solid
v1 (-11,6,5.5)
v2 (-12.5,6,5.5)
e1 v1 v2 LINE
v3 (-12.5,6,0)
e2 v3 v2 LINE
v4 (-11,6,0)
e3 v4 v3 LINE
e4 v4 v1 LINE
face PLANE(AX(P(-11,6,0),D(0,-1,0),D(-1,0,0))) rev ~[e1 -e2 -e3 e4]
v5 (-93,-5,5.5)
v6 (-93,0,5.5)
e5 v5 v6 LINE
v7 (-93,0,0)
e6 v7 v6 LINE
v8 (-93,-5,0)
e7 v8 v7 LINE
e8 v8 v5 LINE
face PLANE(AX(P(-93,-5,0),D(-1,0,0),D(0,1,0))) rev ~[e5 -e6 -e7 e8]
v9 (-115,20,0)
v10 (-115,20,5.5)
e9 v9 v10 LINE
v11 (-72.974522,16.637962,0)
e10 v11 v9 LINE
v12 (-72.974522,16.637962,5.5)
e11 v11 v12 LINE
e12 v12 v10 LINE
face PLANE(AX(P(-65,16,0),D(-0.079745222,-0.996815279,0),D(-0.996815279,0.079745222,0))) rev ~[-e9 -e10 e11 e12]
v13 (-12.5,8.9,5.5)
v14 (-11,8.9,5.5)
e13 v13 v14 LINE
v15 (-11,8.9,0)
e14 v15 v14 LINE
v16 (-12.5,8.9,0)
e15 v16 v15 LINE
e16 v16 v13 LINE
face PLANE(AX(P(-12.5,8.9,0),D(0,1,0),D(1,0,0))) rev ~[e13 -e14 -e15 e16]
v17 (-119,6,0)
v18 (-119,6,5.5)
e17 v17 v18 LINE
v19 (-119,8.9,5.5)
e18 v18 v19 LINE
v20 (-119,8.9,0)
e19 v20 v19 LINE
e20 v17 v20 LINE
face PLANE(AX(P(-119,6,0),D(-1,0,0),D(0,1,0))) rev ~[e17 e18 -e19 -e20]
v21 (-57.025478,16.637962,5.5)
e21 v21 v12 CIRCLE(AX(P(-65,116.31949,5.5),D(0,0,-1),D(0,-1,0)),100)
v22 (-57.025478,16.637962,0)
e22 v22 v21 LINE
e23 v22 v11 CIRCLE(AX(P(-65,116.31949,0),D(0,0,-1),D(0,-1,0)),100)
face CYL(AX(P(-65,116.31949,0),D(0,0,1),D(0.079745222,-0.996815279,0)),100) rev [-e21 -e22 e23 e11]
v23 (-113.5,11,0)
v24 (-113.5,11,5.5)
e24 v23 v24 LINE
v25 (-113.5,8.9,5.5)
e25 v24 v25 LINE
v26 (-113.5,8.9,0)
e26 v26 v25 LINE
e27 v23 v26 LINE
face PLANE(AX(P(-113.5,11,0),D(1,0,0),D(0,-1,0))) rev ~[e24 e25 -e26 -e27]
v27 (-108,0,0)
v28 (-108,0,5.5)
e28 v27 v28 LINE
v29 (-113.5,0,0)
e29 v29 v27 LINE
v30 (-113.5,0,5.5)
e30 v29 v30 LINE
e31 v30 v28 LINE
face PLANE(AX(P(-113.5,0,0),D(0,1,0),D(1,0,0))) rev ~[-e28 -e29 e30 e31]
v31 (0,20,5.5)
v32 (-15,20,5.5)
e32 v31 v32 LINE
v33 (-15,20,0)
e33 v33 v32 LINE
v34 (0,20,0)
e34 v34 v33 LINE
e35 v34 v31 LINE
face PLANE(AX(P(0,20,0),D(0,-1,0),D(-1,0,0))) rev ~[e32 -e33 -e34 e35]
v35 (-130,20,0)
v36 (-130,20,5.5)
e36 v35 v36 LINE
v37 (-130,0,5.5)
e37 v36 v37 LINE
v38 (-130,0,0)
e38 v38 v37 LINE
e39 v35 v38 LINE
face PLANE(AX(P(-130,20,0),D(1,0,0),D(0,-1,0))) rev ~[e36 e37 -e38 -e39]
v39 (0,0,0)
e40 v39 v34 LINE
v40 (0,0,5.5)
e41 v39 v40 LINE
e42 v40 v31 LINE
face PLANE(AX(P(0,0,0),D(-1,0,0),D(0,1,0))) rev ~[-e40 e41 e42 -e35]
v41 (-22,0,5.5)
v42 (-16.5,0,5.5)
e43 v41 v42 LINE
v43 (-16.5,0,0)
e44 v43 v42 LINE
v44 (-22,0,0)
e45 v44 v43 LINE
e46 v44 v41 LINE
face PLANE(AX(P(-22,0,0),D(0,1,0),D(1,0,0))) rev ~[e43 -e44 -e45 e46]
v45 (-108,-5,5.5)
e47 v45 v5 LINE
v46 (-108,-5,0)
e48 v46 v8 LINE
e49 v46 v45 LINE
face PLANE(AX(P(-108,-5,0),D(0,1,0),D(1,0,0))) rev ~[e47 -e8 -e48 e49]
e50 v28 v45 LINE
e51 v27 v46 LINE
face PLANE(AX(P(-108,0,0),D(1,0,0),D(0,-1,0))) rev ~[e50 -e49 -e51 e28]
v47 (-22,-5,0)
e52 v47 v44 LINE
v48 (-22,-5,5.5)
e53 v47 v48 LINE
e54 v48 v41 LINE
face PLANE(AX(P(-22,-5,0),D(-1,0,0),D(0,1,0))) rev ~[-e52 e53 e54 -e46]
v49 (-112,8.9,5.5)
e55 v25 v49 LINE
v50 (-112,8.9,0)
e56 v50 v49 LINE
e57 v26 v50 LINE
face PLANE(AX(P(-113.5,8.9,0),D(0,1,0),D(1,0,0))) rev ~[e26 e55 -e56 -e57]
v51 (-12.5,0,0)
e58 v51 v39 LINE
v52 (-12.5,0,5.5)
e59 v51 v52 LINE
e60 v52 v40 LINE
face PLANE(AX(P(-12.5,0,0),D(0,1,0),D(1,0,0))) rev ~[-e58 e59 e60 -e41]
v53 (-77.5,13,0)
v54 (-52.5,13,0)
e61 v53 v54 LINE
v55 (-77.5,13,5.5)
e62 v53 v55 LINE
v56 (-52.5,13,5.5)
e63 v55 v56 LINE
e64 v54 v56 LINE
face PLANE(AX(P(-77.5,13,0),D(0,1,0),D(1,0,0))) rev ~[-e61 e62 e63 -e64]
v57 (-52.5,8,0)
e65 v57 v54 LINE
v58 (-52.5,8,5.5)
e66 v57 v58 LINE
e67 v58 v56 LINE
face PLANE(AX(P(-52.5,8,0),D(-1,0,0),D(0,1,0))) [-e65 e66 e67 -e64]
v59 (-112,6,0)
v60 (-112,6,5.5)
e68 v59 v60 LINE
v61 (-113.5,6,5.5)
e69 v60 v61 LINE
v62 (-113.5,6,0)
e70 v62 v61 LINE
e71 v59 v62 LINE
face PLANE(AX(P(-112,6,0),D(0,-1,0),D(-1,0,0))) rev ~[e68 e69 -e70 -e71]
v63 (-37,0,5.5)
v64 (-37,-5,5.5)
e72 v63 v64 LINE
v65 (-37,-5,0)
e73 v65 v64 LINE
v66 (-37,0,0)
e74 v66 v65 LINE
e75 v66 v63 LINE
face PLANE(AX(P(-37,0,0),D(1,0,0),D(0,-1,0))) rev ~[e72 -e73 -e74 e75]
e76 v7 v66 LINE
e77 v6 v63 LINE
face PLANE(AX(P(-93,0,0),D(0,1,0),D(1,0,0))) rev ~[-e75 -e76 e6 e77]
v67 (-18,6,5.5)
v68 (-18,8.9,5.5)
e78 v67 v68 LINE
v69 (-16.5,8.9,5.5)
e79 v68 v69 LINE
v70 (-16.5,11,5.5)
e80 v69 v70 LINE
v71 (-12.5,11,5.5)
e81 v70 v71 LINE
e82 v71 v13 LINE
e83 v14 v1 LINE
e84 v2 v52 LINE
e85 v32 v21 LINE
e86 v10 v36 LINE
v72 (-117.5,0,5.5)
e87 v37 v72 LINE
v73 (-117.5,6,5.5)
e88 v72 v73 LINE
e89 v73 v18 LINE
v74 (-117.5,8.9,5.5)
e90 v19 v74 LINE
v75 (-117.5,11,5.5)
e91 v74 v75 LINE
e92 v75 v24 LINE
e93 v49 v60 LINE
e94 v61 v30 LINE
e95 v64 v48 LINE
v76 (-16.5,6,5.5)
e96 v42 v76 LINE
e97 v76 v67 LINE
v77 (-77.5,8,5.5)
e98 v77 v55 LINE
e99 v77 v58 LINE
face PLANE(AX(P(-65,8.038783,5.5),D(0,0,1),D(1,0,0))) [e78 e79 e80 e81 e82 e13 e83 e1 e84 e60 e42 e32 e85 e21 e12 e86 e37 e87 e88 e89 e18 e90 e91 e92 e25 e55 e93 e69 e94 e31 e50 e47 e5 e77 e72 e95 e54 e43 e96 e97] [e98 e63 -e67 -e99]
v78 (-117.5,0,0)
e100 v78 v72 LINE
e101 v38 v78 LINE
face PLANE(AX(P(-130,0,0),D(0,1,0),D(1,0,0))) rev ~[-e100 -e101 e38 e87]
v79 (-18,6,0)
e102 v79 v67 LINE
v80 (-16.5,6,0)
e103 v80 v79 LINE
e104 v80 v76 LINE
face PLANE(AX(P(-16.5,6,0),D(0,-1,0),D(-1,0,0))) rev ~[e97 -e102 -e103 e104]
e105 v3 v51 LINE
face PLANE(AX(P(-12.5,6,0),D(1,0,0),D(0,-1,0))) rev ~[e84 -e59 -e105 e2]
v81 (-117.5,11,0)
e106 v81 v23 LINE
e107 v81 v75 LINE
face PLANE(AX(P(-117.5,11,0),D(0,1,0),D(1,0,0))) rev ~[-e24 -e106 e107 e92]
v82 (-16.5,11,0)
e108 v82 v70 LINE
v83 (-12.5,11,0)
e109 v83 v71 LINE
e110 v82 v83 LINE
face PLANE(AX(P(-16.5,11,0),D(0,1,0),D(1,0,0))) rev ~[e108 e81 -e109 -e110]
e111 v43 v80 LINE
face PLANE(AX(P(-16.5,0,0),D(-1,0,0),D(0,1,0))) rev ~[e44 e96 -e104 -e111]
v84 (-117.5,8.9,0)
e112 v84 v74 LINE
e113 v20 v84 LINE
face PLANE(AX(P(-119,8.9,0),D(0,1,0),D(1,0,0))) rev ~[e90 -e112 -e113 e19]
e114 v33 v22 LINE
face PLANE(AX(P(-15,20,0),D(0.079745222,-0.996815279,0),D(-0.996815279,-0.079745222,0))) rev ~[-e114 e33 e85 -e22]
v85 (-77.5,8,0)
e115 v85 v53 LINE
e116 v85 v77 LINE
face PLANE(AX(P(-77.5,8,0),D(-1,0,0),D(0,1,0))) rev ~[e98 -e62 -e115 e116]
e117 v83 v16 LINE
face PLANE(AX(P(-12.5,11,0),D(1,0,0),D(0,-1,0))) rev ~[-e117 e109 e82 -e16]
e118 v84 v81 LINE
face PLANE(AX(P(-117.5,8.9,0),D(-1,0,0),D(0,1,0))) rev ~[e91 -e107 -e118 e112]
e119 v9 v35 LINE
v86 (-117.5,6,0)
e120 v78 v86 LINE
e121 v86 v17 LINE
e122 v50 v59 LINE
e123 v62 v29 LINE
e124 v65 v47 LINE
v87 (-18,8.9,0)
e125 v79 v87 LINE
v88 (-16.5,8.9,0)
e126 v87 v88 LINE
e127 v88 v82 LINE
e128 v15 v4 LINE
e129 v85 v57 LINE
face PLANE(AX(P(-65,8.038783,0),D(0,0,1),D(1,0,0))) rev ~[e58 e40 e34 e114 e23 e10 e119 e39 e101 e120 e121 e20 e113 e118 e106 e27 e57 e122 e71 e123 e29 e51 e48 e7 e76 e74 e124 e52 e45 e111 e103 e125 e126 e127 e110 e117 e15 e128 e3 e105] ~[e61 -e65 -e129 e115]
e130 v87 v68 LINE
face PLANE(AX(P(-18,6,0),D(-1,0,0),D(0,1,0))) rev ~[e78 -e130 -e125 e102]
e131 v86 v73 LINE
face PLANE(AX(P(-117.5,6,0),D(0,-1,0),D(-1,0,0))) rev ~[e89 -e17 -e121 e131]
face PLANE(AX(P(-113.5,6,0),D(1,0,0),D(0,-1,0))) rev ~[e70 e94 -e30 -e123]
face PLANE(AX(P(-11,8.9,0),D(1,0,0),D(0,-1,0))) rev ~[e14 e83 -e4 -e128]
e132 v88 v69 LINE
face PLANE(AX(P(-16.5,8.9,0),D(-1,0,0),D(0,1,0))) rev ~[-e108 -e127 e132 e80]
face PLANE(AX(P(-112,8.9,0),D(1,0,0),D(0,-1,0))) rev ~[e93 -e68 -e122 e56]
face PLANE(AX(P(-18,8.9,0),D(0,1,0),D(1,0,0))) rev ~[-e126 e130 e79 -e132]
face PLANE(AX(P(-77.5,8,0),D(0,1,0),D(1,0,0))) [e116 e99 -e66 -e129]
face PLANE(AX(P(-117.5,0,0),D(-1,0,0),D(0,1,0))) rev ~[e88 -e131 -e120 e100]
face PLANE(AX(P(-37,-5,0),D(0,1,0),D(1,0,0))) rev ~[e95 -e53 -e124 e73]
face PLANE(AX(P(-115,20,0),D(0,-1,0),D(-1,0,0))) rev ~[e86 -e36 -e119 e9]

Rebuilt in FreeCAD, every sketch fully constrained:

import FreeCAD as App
import Part
import Sketcher
from FreeCAD import Vector
Q = App.Units.Quantity


def edges_at(feature, points):
    """Names of the edges that pass closest to the given points."""
    edges = feature.Shape.Edges
    near = lambda p: min(range(len(edges)), key=lambda i: edges[i].distToShape(Part.Vertex(*p))[0])
    return sorted({f"Edge{near(p) + 1}" for p in points})


def add_polygon(sketch, points):
    """Adds a closed chain of lines whose ends are joined by coincident constraints."""
    first, n = sketch.GeometryCount, len(points)
    for a, b in zip(points, points[1:] + points[:1]):
        sketch.addGeometry(Part.LineSegment(App.Vector(*a, 0), App.Vector(*b, 0)), False)
    for i in range(n):
        sketch.addConstraint(Sketcher.Constraint("Coincident", first + i, 2, first + (i + 1) % n, 1))

doc = App.newDocument("Part")
body = doc.addObject("PartDesign::Body", "Body")

# Sketch on XY plane
sketch1 = body.newObject("Sketcher::SketchObject", "Sketch")
sketch1.AttachmentSupport = (doc.getObject("XY_Plane"), [""])
sketch1.MapMode = "FlatFace"
add_polygon(sketch1, [(-15, 20), (-65, 16), (-115, 20), (-130, 20), (-130, 0), (-117.5, 0), (-117.5, 6), (-119, 6), (-119, 8.9), (-117.5, 8.9), (-117.5, 11), (-113.5, 11), (-113.5, 8.9), (-112, 8.9), (-112, 6), (-113.5, 6), (-113.5, 0), (-108, 0), (-108, -5), (-93, -5), (-93, 0), (-37, 0), (-37, -5), (-22, -5), (-22, 0), (-16.5, 0), (-16.5, 6), (-18, 6), (-18, 8.9), (-16.5, 8.9), (-16.5, 11), (-12.5, 11), (-12.5, 8.9), (-11, 8.9), (-11, 6), (-12.5, 6), (-12.5, 0), (0, 0), (0, 20)])  # lines 0-38
add_polygon(sketch1, [(-52.5, 8), (-77.5, 8), (-77.5, 13), (-52.5, 13)])  # lines 39-42
sketch1.addConstraint(Sketcher.Constraint("Horizontal", 2))
sketch1.addConstraint(Sketcher.Constraint("Vertical", 3))
sketch1.addConstraint(Sketcher.Constraint("Horizontal", 4))
sketch1.addConstraint(Sketcher.Constraint("Vertical", 5))
sketch1.addConstraint(Sketcher.Constraint("Horizontal", 6))
sketch1.addConstraint(Sketcher.Constraint("Vertical", 7))
sketch1.addConstraint(Sketcher.Constraint("Horizontal", 8))
sketch1.addConstraint(Sketcher.Constraint("Vertical", 9))
sketch1.addConstraint(Sketcher.Constraint("Horizontal", 10))
sketch1.addConstraint(Sketcher.Constraint("Vertical", 11))
sketch1.addConstraint(Sketcher.Constraint("Horizontal", 12))
sketch1.addConstraint(Sketcher.Constraint("Vertical", 13))
sketch1.addConstraint(Sketcher.Constraint("Horizontal", 14))
sketch1.addConstraint(Sketcher.Constraint("Vertical", 15))
sketch1.addConstraint(Sketcher.Constraint("Horizontal", 16))
sketch1.addConstraint(Sketcher.Constraint("Vertical", 17))
sketch1.addConstraint(Sketcher.Constraint("Horizontal", 18))
sketch1.addConstraint(Sketcher.Constraint("Vertical", 19))
sketch1.addConstraint(Sketcher.Constraint("Horizontal", 20))
sketch1.addConstraint(Sketcher.Constraint("Vertical", 21))
sketch1.addConstraint(Sketcher.Constraint("Horizontal", 22))
sketch1.addConstraint(Sketcher.Constraint("Vertical", 23))
sketch1.addConstraint(Sketcher.Constraint("Horizontal", 24))
sketch1.addConstraint(Sketcher.Constraint("Vertical", 25))
sketch1.addConstraint(Sketcher.Constraint("Horizontal", 26))
sketch1.addConstraint(Sketcher.Constraint("Vertical", 27))
sketch1.addConstraint(Sketcher.Constraint("Horizontal", 28))
sketch1.addConstraint(Sketcher.Constraint("Vertical", 29))
sketch1.addConstraint(Sketcher.Constraint("Horizontal", 30))
sketch1.addConstraint(Sketcher.Constraint("Vertical", 31))
sketch1.addConstraint(Sketcher.Constraint("Horizontal", 32))
sketch1.addConstraint(Sketcher.Constraint("Vertical", 33))
sketch1.addConstraint(Sketcher.Constraint("Horizontal", 34))
sketch1.addConstraint(Sketcher.Constraint("Vertical", 35))
sketch1.addConstraint(Sketcher.Constraint("Horizontal", 36))
sketch1.addConstraint(Sketcher.Constraint("Vertical", 37))
sketch1.addConstraint(Sketcher.Constraint("Horizontal", 38))
sketch1.addConstraint(Sketcher.Constraint("Horizontal", 39))
sketch1.addConstraint(Sketcher.Constraint("Vertical", 40))
sketch1.addConstraint(Sketcher.Constraint("Horizontal", 41))
sketch1.addConstraint(Sketcher.Constraint("Vertical", 42))
sketch1.addConstraint(Sketcher.Constraint("Coincident", 36, 2, -1, 1))
sketch1.addConstraint(Sketcher.Constraint("PointOnObject", 3, 2, -1))
sketch1.addConstraint(Sketcher.Constraint("PointOnObject", 15, 2, -1))
sketch1.addConstraint(Sketcher.Constraint("PointOnObject", 19, 2, -1))
sketch1.addConstraint(Sketcher.Constraint("PointOnObject", 23, 2, -1))
sketch1.addConstraint(Sketcher.Constraint("Horizontal", 8, 2, 11, 2))
sketch1.addConstraint(Sketcher.Constraint("Horizontal", 6, 2, 13, 2))
sketch1.addConstraint(Sketcher.Constraint("Horizontal", 18, 2, 21, 2))
sketch1.addConstraint(Sketcher.Constraint("Horizontal", 14, 2, 25, 2))
sketch1.addConstraint(Sketcher.Constraint("Horizontal", 12, 2, 27, 2))
sketch1.addConstraint(Sketcher.Constraint("Horizontal", 10, 2, 29, 2))
sketch1.addConstraint(Sketcher.Constraint("Horizontal", 28, 2, 31, 2))
sketch1.addConstraint(Sketcher.Constraint("Horizontal", 26, 2, 33, 2))
sketch1.addConstraint(Sketcher.Constraint("Horizontal", 2, 2, 37, 2))
sketch1.addConstraint(Sketcher.Constraint("Vertical", 5, 2, 8, 2))
sketch1.addConstraint(Sketcher.Constraint("Vertical", 11, 2, 14, 2))
sketch1.addConstraint(Sketcher.Constraint("Vertical", 25, 2, 28, 2))
sketch1.addConstraint(Sketcher.Constraint("Vertical", 31, 2, 34, 2))
sketch1.addConstraint(Sketcher.Constraint("Equal", 8, 12))
sketch1.addConstraint(Sketcher.Constraint("Equal", 2, 18))
sketch1.addConstraint(Sketcher.Constraint("Equal", 18, 22))
sketch1.addConstraint(Sketcher.Constraint("Equal", 16, 24))
sketch1.addConstraint(Sketcher.Constraint("Equal", 14, 26))
sketch1.addConstraint(Sketcher.Constraint("Equal", 10, 30))
sketch1.addConstraint(Sketcher.Constraint("Equal", 28, 32))
sketch1.addConstraint(Sketcher.Constraint("Equal", 4, 36))
sketch1.addConstraint(Sketcher.Constraint("Equal", 22, 38))
sketch1.addConstraint(Sketcher.Constraint("Equal", 23, 40))
sketch1.addConstraint(Sketcher.Constraint("Equal", 0, 1))
sketch1.addConstraint(Sketcher.Constraint("DistanceX", 2, 2, 2, 1, Q("15 mm")))
sketch1.addConstraint(Sketcher.Constraint("DistanceX", 10, 1, 10, 2, Q("4 mm")))
sketch1.addConstraint(Sketcher.Constraint("DistanceX", 20, 1, 20, 2, Q("56 mm")))
sketch1.addConstraint(Sketcher.Constraint("DistanceX", 39, 2, 39, 1, Q("25 mm")))
sketch1.addConstraint(Sketcher.Constraint("DistanceY", 3, 2, 3, 1, Q("20 mm")))
sketch1.addConstraint(Sketcher.Constraint("DistanceY", 5, 1, 5, 2, Q("6 mm")))
sketch1.addConstraint(Sketcher.Constraint("DistanceY", 17, 2, 17, 1, Q("5 mm")))
sketch1.addConstraint(Sketcher.Constraint("DistanceX", 4, 1, 4, 2, Q("12.5 mm")))
sketch1.addConstraint(Sketcher.Constraint("DistanceX", 6, 2, 6, 1, Q("1.5 mm")))
sketch1.addConstraint(Sketcher.Constraint("DistanceX", 16, 1, 16, 2, Q("5.5 mm")))
sketch1.addConstraint(Sketcher.Constraint("DistanceY", 7, 1, 7, 2, Q("2.9 mm")))
sketch1.addConstraint(Sketcher.Constraint("DistanceY", 9, 1, 9, 2, Q("2.1 mm")))
sketch1.addConstraint(Sketcher.Constraint("DistanceY", -1, 1, 0, 2, Q("16 mm")))
sketch1.addConstraint(Sketcher.Constraint("DistanceY", -1, 1, 39, 2, Q("8 mm")))
sketch1.addConstraint(Sketcher.Constraint("DistanceX", 39, 2, -1, 1, Q("77.5 mm")))
pad1 = body.newObject("PartDesign::Pad", "Pad")
pad1.Profile = sketch1
pad1.Length = 5.5
doc.recompute()

fillet = body.newObject("PartDesign::Fillet", "Fillet")
fillet.Base = (pad1, edges_at(pad1, [(-65, 16, 2.75)]))
fillet.Radius = 100

doc.recompute()
